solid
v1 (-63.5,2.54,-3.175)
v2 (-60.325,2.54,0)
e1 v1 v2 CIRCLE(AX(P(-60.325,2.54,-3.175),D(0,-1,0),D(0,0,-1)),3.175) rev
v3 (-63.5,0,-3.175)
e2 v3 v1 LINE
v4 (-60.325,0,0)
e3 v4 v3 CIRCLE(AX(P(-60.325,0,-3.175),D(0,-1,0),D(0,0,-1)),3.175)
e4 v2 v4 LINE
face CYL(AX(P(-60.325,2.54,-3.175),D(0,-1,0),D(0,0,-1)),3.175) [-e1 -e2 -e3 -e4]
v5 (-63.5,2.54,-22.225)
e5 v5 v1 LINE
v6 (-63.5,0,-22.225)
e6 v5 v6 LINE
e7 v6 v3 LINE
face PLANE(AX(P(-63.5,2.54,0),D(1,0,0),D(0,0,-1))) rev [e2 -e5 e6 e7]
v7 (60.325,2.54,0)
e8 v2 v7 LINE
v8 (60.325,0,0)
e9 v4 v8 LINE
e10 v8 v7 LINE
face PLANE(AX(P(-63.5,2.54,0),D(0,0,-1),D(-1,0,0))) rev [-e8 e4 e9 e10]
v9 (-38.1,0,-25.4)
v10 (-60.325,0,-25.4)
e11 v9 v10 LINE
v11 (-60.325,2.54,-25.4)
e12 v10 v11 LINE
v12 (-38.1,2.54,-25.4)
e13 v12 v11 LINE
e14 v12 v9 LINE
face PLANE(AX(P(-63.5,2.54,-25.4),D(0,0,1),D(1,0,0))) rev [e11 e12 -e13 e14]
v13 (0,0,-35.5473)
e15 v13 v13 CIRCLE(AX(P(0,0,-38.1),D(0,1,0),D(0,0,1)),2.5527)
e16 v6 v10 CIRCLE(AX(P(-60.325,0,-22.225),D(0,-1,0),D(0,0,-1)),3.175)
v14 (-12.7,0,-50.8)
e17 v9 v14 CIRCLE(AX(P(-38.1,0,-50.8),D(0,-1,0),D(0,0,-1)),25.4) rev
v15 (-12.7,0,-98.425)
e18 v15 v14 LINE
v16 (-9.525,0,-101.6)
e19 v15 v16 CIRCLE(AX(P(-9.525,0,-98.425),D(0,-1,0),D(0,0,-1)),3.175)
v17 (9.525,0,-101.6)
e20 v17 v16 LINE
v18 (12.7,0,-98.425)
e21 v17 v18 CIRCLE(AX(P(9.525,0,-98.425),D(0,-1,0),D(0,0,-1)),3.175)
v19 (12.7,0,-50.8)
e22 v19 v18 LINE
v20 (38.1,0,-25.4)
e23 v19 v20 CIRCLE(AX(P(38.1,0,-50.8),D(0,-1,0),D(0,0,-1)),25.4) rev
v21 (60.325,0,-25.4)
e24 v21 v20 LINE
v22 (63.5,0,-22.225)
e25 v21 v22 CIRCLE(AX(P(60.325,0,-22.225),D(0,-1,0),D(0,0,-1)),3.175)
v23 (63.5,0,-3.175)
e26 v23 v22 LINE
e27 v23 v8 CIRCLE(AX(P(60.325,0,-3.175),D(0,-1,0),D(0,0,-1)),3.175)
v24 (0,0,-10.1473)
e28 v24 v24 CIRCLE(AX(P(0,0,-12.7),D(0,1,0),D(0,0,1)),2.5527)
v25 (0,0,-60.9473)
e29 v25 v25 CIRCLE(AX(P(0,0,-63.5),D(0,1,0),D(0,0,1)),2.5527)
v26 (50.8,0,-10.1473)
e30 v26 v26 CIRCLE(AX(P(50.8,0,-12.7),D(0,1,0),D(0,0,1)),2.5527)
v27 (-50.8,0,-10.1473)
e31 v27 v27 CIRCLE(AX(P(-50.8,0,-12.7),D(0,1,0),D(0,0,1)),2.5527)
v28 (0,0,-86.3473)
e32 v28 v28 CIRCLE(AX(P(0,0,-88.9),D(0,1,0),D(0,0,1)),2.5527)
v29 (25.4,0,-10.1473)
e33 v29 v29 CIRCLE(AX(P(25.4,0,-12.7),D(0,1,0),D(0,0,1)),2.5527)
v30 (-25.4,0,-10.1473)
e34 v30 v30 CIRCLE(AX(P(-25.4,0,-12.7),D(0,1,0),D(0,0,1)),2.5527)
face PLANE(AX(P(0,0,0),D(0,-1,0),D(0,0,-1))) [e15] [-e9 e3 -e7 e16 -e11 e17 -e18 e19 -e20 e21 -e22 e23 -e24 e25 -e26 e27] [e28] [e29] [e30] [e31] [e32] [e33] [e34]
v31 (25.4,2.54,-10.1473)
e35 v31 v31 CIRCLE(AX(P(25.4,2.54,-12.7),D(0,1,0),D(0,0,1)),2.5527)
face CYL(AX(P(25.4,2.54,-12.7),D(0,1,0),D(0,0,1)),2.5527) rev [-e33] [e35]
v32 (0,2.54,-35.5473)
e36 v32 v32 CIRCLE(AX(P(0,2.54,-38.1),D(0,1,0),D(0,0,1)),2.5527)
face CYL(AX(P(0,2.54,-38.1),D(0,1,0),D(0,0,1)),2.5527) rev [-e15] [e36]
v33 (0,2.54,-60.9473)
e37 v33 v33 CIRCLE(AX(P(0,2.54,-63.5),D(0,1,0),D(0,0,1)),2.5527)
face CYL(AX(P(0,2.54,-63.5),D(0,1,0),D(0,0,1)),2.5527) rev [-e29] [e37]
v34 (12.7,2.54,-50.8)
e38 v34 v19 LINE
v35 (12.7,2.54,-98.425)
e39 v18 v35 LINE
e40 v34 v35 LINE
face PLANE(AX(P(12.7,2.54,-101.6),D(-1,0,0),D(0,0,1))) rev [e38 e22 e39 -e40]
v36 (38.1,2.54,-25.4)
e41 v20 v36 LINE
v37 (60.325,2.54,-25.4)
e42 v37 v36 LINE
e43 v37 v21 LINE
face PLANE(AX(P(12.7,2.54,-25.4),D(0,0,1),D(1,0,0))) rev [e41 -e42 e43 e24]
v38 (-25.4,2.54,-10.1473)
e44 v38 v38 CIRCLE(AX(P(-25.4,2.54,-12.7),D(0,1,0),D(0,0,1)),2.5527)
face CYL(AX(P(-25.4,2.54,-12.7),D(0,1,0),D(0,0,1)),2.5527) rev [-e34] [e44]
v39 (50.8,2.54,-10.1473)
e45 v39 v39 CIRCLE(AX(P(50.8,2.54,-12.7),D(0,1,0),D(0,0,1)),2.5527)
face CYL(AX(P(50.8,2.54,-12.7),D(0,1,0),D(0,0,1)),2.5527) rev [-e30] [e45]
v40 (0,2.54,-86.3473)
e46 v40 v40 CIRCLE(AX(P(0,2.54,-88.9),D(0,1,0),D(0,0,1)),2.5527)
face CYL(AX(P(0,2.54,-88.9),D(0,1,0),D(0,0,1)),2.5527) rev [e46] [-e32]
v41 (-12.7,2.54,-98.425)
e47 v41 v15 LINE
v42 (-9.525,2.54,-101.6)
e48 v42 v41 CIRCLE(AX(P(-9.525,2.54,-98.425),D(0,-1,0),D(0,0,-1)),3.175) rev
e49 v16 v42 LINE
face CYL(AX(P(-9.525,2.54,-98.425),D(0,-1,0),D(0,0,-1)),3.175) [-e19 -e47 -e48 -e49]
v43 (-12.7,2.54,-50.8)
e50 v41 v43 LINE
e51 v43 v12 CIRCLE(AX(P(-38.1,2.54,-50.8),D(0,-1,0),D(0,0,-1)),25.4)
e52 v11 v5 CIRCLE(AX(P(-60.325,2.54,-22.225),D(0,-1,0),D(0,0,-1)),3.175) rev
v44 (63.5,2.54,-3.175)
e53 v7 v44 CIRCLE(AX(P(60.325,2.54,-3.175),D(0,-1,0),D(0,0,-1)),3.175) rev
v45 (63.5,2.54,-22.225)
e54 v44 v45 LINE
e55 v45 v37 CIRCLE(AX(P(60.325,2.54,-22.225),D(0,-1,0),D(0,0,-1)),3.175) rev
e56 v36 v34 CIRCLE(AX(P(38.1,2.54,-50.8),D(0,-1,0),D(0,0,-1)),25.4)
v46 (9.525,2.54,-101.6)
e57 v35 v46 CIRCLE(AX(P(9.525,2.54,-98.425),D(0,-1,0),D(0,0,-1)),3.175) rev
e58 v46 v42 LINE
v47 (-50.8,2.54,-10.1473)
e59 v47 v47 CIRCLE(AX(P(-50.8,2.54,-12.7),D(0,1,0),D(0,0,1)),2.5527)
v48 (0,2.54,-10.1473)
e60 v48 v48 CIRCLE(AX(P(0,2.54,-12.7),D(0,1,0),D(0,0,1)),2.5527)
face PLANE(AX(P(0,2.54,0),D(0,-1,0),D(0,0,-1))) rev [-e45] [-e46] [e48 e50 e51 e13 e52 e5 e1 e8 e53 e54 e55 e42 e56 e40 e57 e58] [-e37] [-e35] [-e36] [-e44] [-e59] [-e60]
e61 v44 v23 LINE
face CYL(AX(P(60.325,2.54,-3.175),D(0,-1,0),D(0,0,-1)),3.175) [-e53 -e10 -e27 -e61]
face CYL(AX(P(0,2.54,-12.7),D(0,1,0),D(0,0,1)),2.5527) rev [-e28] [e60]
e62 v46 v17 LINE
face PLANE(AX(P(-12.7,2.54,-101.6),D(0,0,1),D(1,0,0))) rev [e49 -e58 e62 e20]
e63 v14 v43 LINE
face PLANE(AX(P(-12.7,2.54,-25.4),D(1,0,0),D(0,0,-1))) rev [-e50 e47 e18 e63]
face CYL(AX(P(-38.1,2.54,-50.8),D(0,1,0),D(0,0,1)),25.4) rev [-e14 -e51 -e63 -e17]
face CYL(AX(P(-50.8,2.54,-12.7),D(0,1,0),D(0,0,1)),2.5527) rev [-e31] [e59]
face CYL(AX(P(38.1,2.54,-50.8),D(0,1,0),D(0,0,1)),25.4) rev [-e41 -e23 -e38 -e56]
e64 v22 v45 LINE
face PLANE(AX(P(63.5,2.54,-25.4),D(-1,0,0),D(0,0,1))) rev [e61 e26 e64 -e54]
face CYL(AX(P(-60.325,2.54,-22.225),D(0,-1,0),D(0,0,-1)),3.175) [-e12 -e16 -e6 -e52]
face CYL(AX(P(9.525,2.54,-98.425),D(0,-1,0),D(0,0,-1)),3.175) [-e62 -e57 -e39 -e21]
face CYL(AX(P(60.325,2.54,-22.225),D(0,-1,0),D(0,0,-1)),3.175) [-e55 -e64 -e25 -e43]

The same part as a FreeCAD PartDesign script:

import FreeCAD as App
import Part
import Sketcher

V = App.Vector
Q = App.Units.Quantity


def edges_at(feature, points):
    """Names of the edges that pass closest to the given points."""
    edges = feature.Shape.Edges
    near = lambda p: min(range(len(edges)), key=lambda i: edges[i].distToShape(Part.Vertex(*p))[0])
    return sorted({f"Edge{near(p) + 1}" for p in points})


def add_polygon(sketch, points):
    """Adds a closed chain of lines whose ends are joined by coincident constraints."""
    first, n = sketch.GeometryCount, len(points)
    for a, b in zip(points, points[1:] + points[:1]):
        sketch.addGeometry(Part.LineSegment(App.Vector(*a, 0), App.Vector(*b, 0)), False)
    for i in range(n):
        sketch.addConstraint(Sketcher.Constraint("Coincident", first + i, 2, first + (i + 1) % n, 1))

doc = App.newDocument("Part")
body = doc.addObject("PartDesign::Body", "Body")

# Sketch on XZ plane
sketch1 = body.newObject("Sketcher::SketchObject", "Sketch")
sketch1.AttachmentSupport = (doc.getObject("XZ_Plane"), [""])
sketch1.MapMode = "FlatFace"
add_polygon(sketch1, [(-64, 0), (64, 0), (64, -25), (13, -25), (13, -102), (-13, -102), (-13, -25), (-64, -25)])  # lines 0-7
sketch1.addConstraint([
    Sketcher.Constraint("Horizontal", 0),
    Sketcher.Constraint("Vertical", 1),
    Sketcher.Constraint("Horizontal", 2),
    Sketcher.Constraint("Vertical", 3),
    Sketcher.Constraint("Horizontal", 4),
    Sketcher.Constraint("Vertical", 5),
    Sketcher.Constraint("Horizontal", 6),
    Sketcher.Constraint("Vertical", 7),
    Sketcher.Constraint("Symmetric", 0, 2, 7, 2, -1, 1),
    Sketcher.Constraint("Symmetric", 2, 2, 5, 2, -2),
    Sketcher.Constraint("Equal", 4, 1),
    Sketcher.Constraint("DistanceX", 0, 1, 0, 2, Q("5 in")),
    Sketcher.Constraint("DistanceX", 2, 2, 2, 1, Q("2 in")),
    Sketcher.Constraint("DistanceY", 3, 2, 3, 1, Q("3 in")),
])
pad1 = body.newObject("PartDesign::Pad", "Pad")
pad1.Profile = sketch1
pad1.Length = Q("0.1 in")
pad1.Reversed = True
doc.recompute()

fillet = body.newObject("PartDesign::Fillet", "Fillet")
fillet.Base = (pad1, edges_at(pad1, [
    (-12.7, 1.27, -101.6),
    (12.7, 1.27, -101.6),
    (63.5, 1.27, -25.4),
    (63.5, 1.27, 0),
    (-63.5, 1.27, 0),
    (-63.5, 1.27, -25.4),
]))
fillet.Radius = Q("0.125 in")

# Sketch on XZ plane
sketch2 = body.newObject("Sketcher::SketchObject", "Sketch001")
sketch2.AttachmentSupport = (doc.getObject("XZ_Plane"), [""])
sketch2.MapMode = "FlatFace"
sketch2.AttachmentOffset = App.Placement(V(0, 0, -0.1 * 25.4), App.Rotation())
sketch2.addGeometry([
    Part.Circle(V(0, -12.7, 0), V(0, 0, 1), 2.6),  # 0
    Part.Circle(V(25.4, -12.7, 0), V(0, 0, 1), 2.6),  # 1
    Part.Circle(V(50.8, -12.7, 0), V(0, 0, 1), 2.6),  # 2
    Part.Circle(V(-25.4, -12.7, 0), V(0, 0, 1), 2.6),  # 3
    Part.Circle(V(-50.8, -12.7, 0), V(0, 0, 1), 2.6),  # 4
    Part.Circle(V(0, -38.1, 0), V(0, 0, 1), 2.6),  # 5
    Part.Circle(V(0, -63.5, 0), V(0, 0, 1), 2.6),  # 6
    Part.Circle(V(0, -88.9, 0), V(0, 0, 1), 2.6),  # 7
], False)
sketch2.addConstraint([
    Sketcher.Constraint("Equal", 0, 1),
    Sketcher.Constraint("Equal", 1, 2),
    Sketcher.Constraint("Equal", 2, 3),
    Sketcher.Constraint("Equal", 3, 4),
    Sketcher.Constraint("Equal", 4, 5),
    Sketcher.Constraint("Equal", 5, 6),
    Sketcher.Constraint("Equal", 6, 7),
    Sketcher.Constraint("Symmetric", 1, 3, 3, 3, -2),
    Sketcher.Constraint("Symmetric", 2, 3, 4, 3, -2),
    Sketcher.Constraint("PointOnObject", 0, 3, -2),
    Sketcher.Constraint("PointOnObject", 5, 3, -2),
    Sketcher.Constraint("PointOnObject", 6, 3, -2),
    Sketcher.Constraint("PointOnObject", 7, 3, -2),
    Sketcher.Constraint("Horizontal", 0, 3, 1, 3),
    Sketcher.Constraint("Horizontal", 1, 3, 2, 3),
    Sketcher.Constraint("Diameter", 0, Q("0.201 in")),
    Sketcher.Constraint("DistanceX", -1, 1, 1, 3, Q("1 in")),
    Sketcher.Constraint("DistanceX", -1, 1, 2, 3, Q("2 in")),
    Sketcher.Constraint("DistanceY", 5, 3, 0, 3, Q("1 in")),
    Sketcher.Constraint("DistanceY", 6, 3, 5, 3, Q("1 in")),
    Sketcher.Constraint("DistanceY", 7, 3, 6, 3, Q("1 in")),
    Sketcher.Constraint("DistanceY", 0, 3, -1, 1, Q("0.5 in")),
])
doc.recompute()
hole = body.newObject("PartDesign::Hole", "Hole")
hole.Profile = sketch2
hole.ThreadType = "None"
hole.Diameter = Q("0.201 in")
hole.DepthType = "ThroughAll"
hole.Reversed = True
doc.recompute()

fillet2 = body.newObject("PartDesign::Fillet", "Fillet001")
fillet2.Base = (hole, edges_at(hole, [(12.7, 1.27, -25.4), (-12.7, 1.27, -25.4)]))
fillet2.Radius = Q("1 in")

doc.recompute()
